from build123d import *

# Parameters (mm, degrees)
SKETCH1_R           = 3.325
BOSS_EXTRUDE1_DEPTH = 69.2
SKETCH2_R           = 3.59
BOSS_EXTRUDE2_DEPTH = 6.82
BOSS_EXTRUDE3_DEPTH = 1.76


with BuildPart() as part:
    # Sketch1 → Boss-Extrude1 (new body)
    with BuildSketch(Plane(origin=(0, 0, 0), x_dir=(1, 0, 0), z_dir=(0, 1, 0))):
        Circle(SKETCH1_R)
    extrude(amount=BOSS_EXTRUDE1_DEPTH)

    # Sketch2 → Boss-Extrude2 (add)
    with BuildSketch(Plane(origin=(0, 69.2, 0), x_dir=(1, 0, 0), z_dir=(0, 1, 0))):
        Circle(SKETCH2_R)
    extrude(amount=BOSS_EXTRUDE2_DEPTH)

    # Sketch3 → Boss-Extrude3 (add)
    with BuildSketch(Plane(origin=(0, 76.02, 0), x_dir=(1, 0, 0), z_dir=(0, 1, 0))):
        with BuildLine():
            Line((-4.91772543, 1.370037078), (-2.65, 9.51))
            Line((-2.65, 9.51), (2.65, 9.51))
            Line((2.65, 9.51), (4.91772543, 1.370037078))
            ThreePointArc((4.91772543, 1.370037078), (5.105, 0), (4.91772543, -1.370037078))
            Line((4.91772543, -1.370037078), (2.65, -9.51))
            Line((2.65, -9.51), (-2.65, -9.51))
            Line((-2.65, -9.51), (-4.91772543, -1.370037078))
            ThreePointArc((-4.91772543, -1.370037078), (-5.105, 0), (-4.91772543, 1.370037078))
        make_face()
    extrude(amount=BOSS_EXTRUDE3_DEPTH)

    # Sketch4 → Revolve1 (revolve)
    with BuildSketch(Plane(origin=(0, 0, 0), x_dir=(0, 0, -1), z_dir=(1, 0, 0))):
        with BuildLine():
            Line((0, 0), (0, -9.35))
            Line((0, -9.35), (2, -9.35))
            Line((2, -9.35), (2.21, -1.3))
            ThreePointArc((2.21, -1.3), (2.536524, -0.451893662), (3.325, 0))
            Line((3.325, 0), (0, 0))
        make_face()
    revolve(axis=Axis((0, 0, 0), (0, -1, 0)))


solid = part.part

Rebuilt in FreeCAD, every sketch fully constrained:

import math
import FreeCAD as App
import Part
import Sketcher

V = App.Vector

doc = App.newDocument("Part")
body = doc.addObject("PartDesign::Body", "Body")

sketch1 = doc.addObject("Sketcher::SketchObject", "Sketch")
body.addObject(sketch1)
sketch1.AttachmentSupport = (doc.XZ_Plane, [""])
sketch1.MapMode = "FlatFace"
sketch1.addGeometry(Part.Circle(V(0, 0, 0), V(0, 0, 1), 3.3), False)
sketch1.addConstraint(Sketcher.Constraint("Coincident", 0, 3, -1, 1))
sketch1.addConstraint(Sketcher.Constraint("Diameter", 0, 6.65))
pad1 = doc.addObject("PartDesign::Pad", "Pad")
body.addObject(pad1)
pad1.Profile = sketch1
pad1.Length = 69.2
pad1.Reversed = True

sketch2 = doc.addObject("Sketcher::SketchObject", "Sketch001")
body.addObject(sketch2)
sketch2.AttachmentSupport = (doc.XZ_Plane, [""])
sketch2.MapMode = "FlatFace"
sketch2.AttachmentOffset = App.Placement(V(0, 0, -69.2), App.Rotation())
sketch2.addGeometry(Part.Circle(V(0, 0, 0), V(0, 0, 1), 3.6), False)
sketch2.addConstraint(Sketcher.Constraint("Coincident", 0, 3, -1, 1))
sketch2.addConstraint(Sketcher.Constraint("Diameter", 0, 7.18))
pad2 = doc.addObject("PartDesign::Pad", "Pad001")
body.addObject(pad2)
pad2.Profile = sketch2
pad2.Length = 6.82
pad2.Reversed = True

sketch3 = doc.addObject("Sketcher::SketchObject", "Sketch002")
body.addObject(sketch3)
sketch3.AttachmentSupport = (doc.XZ_Plane, [""])
sketch3.MapMode = "FlatFace"
sketch3.AttachmentOffset = App.Placement(V(0, 0, -76.02), App.Rotation())
sketch3.addGeometry(Part.LineSegment(V(-2.6, -9.5, 0), V(-4.9, -1.4, 0)), False)
sketch3.addGeometry(Part.ArcOfCircle(Part.Circle(V(0, 0, 0), V(0, 0, 1), 5.1), math.radians(164), math.radians(196)), False)
sketch3.addGeometry(Part.LineSegment(V(-4.9, 1.4, 0), V(-2.6, 9.5, 0)), False)
sketch3.addGeometry(Part.LineSegment(V(-2.6, 9.5, 0), V(2.6, 9.5, 0)), False)
sketch3.addGeometry(Part.LineSegment(V(2.6, 9.5, 0), V(4.9, 1.4, 0)), False)
sketch3.addGeometry(Part.ArcOfCircle(Part.Circle(V(0, 0, 0), V(0, 0, 1), 5.1), math.radians(-16), math.radians(16)), False)
sketch3.addGeometry(Part.LineSegment(V(4.9, -1.4, 0), V(2.6, -9.5, 0)), False)
sketch3.addGeometry(Part.LineSegment(V(2.6, -9.5, 0), V(-2.6, -9.5, 0)), False)
sketch3.addConstraint(Sketcher.Constraint("Tangent", 0, 2, 1, 2))
sketch3.addConstraint(Sketcher.Constraint("Tangent", 1, 1, 2, 1))
sketch3.addConstraint(Sketcher.Constraint("Coincident", 2, 2, 3, 1))
sketch3.addConstraint(Sketcher.Constraint("Coincident", 3, 2, 4, 1))
sketch3.addConstraint(Sketcher.Constraint("Tangent", 4, 2, 5, 2))
sketch3.addConstraint(Sketcher.Constraint("Tangent", 5, 1, 6, 1))
sketch3.addConstraint(Sketcher.Constraint("Coincident", 6, 2, 7, 1))
sketch3.addConstraint(Sketcher.Constraint("Coincident", 7, 2, 0, 1))
sketch3.addConstraint(Sketcher.Constraint("Horizontal", 3))
sketch3.addConstraint(Sketcher.Constraint("Horizontal", 7))
sketch3.addConstraint(Sketcher.Constraint("Coincident", 1, 3, -1, 1))
sketch3.addConstraint(Sketcher.Constraint("Coincident", 5, 3, -1, 1))
sketch3.addConstraint(Sketcher.Constraint("Equal", 1, 5))
sketch3.addConstraint(Sketcher.Constraint("Symmetric", 2, 2, 6, 2, -1, 1))
sketch3.addConstraint(Sketcher.Constraint("Parallel", 0, 4))
sketch3.addConstraint(Sketcher.Constraint("Horizontal", 1, 1, 4, 2))
sketch3.addConstraint(Sketcher.Constraint("DistanceX", 3, 1, 3, 2, 5.3))
sketch3.addConstraint(Sketcher.Constraint("Radius", 1, 5.105))
sketch3.addConstraint(Sketcher.Constraint("DistanceY", -1, 1, 2, 2, 9.51))
pad3 = doc.addObject("PartDesign::Pad", "Pad002")
body.addObject(pad3)
pad3.Profile = sketch3
pad3.Length = 1.76
pad3.Reversed = True

sketch4 = doc.addObject("Sketcher::SketchObject", "Sketch003")
body.addObject(sketch4)
sketch4.AttachmentSupport = (doc.YZ_Plane, [""])
sketch4.MapMode = "FlatFace"
sketch4.addGeometry(Part.LineSegment(V(0, 0, 0), V(-9.3, 0, 0)), False)
sketch4.addGeometry(Part.LineSegment(V(-9.3, 0, 0), V(-9.3, -2, 0)), False)
sketch4.addGeometry(Part.LineSegment(V(-9.3, -2, 0), V(-1.3, -2.2, 0)), False)
sketch4.addGeometry(Part.ArcOfCircle(Part.Circle(V(-1.3, -3.6, 0), V(0, 0, 1), 1.4), math.radians(10), math.radians(89)), False)
sketch4.addGeometry(Part.LineSegment(V(0, -3.3, 0), V(0, 0, 0)), False)
sketch4.addConstraint(Sketcher.Constraint("Coincident", 0, 2, 1, 1))
sketch4.addConstraint(Sketcher.Constraint("Coincident", 1, 2, 2, 1))
sketch4.addConstraint(Sketcher.Constraint("Tangent", 2, 2, 3, 2))
sketch4.addConstraint(Sketcher.Constraint("Coincident", 3, 1, 4, 1))
sketch4.addConstraint(Sketcher.Constraint("Coincident", 4, 2, 0, 1))
sketch4.addConstraint(Sketcher.Constraint("Horizontal", 0))
sketch4.addConstraint(Sketcher.Constraint("Vertical", 1))
sketch4.addConstraint(Sketcher.Constraint("Vertical", 4))
sketch4.addConstraint(Sketcher.Constraint("Coincident", 4, 2, -1, 1))
sketch4.addConstraint(Sketcher.Constraint("DistanceY", 1, 2, 1, 1, 2.0))
sketch4.addConstraint(Sketcher.Constraint("DistanceX", 0, 2, 0, 1, 9.35))
sketch4.addConstraint(Sketcher.Constraint("DistanceX", 2, 2, -1, 1, 1.3))
sketch4.addConstraint(Sketcher.Constraint("DistanceY", 4, 1, 4, 2, 3.325))
sketch4.addConstraint(Sketcher.Constraint("DistanceY", 2, 2, -1, 1, 2.21))
revolution = doc.addObject("PartDesign::Revolution", "Revolution")
body.addObject(revolution)
revolution.Profile = sketch4
revolution.ReferenceAxis = (sketch4, ["H_Axis"])
revolution.Angle = 360

doc.recompute()
